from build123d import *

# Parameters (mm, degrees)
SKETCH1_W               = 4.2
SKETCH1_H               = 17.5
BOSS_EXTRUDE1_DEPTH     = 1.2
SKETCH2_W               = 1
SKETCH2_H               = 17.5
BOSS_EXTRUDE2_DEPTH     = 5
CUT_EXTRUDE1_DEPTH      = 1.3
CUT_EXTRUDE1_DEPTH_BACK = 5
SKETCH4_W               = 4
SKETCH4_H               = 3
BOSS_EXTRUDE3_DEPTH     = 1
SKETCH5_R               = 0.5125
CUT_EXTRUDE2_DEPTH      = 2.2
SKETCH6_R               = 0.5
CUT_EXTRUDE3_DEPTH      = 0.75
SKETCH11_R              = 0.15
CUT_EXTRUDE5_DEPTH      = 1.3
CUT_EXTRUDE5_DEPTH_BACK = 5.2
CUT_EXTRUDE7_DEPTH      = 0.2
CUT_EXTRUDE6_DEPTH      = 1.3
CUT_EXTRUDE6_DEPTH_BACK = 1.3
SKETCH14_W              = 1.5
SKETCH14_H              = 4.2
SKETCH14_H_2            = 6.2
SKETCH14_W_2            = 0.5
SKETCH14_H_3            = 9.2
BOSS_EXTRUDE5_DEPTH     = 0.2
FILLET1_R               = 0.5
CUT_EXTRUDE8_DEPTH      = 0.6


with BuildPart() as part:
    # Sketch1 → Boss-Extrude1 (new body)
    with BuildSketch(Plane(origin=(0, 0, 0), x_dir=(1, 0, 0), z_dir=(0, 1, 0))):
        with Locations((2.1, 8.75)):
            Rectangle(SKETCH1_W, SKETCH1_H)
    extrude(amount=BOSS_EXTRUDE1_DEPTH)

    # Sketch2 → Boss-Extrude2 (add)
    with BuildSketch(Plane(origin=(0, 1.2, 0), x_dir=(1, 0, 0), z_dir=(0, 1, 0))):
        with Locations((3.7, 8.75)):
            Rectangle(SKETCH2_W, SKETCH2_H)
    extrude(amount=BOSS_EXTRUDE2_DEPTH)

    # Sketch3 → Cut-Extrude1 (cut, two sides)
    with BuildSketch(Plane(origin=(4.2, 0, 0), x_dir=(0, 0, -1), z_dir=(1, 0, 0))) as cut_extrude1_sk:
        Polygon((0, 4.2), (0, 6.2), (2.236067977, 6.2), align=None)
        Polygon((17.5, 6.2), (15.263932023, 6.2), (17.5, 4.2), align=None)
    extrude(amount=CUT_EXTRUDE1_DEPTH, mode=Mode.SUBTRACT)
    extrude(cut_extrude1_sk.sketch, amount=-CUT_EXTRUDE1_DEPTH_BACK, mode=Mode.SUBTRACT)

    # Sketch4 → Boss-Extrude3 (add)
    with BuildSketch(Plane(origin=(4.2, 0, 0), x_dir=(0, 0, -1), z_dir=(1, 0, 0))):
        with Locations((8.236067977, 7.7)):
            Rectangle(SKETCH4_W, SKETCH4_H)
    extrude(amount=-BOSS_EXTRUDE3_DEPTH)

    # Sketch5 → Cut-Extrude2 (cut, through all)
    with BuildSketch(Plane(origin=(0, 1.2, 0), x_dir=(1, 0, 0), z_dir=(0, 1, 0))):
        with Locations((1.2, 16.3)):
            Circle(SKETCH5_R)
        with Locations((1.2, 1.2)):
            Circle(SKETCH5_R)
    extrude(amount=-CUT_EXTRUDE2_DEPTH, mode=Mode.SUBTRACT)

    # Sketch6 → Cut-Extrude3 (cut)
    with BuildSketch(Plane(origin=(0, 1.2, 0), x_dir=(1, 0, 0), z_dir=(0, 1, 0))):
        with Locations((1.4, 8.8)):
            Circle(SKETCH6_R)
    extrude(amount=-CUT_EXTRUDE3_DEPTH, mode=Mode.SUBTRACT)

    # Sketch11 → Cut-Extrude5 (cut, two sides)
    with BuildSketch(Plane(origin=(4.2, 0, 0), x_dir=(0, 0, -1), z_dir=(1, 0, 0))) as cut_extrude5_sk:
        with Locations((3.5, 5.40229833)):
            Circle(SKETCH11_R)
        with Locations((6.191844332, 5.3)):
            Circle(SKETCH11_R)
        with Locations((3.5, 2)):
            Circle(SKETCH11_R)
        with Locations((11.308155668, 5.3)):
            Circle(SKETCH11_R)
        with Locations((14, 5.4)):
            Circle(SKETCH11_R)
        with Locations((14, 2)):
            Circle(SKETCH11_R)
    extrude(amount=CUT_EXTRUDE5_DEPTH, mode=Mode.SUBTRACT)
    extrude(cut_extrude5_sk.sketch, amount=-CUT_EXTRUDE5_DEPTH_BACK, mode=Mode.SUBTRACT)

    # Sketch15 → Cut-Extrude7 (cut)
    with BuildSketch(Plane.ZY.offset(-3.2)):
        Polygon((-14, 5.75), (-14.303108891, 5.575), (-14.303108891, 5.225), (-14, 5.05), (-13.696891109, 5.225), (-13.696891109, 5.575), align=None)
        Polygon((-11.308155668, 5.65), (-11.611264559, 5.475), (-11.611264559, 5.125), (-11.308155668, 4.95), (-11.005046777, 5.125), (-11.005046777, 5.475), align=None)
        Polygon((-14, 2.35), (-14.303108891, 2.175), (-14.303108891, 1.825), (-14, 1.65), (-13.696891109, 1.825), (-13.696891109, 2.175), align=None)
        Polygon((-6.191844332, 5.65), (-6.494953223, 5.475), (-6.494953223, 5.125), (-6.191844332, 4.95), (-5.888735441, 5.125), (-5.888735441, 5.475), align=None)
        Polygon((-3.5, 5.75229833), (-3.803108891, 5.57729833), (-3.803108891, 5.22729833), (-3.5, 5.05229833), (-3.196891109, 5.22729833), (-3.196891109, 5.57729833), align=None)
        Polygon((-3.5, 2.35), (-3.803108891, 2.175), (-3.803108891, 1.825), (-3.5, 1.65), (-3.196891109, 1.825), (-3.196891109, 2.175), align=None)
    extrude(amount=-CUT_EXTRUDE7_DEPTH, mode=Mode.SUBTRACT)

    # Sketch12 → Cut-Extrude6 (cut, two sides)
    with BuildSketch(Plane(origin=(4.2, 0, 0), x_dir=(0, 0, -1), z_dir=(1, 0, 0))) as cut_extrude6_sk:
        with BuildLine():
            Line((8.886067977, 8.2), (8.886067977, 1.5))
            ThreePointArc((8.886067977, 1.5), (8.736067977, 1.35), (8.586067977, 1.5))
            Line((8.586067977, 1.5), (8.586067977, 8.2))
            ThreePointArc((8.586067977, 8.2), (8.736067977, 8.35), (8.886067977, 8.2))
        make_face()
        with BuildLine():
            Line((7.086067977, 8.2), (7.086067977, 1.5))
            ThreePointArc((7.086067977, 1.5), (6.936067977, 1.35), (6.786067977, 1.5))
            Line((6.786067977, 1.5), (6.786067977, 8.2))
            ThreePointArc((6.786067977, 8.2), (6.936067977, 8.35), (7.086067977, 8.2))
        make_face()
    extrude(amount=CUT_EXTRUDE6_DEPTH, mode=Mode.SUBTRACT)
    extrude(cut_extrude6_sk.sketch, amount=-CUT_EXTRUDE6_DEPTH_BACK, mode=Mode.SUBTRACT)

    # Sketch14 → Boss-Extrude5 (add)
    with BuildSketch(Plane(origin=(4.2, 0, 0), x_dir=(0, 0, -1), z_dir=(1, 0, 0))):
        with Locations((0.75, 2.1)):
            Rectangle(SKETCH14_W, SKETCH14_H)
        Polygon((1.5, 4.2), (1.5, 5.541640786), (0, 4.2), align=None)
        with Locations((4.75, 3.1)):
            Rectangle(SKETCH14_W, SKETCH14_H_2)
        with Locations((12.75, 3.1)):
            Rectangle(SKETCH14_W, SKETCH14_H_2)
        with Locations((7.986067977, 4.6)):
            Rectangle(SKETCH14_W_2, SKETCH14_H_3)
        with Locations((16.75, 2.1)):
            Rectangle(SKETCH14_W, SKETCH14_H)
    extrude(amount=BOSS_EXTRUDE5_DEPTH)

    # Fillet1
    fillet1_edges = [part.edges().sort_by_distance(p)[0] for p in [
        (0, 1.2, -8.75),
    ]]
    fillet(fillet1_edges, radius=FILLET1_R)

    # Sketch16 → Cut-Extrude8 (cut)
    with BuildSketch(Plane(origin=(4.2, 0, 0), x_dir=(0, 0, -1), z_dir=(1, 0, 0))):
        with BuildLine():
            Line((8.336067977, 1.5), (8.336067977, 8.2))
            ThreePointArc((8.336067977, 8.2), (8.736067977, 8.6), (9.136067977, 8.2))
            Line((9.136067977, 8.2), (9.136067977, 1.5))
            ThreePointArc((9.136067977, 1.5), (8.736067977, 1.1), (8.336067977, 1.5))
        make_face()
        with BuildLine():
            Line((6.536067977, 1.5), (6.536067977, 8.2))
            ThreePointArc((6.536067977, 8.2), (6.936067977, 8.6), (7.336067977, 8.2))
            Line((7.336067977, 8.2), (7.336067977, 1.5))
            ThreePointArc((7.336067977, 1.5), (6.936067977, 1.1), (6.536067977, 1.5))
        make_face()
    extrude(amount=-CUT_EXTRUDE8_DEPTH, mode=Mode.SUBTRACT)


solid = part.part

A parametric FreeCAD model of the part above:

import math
import FreeCAD as App
import Part
import Sketcher

V = App.Vector
Q = App.Units.Quantity


def edges_at(feature, points):
    """Names of the edges that pass closest to the given points."""
    edges = feature.Shape.Edges
    near = lambda p: min(range(len(edges)), key=lambda i: edges[i].distToShape(Part.Vertex(*p))[0])
    return sorted({f"Edge{near(p) + 1}" for p in points})

doc = App.newDocument("Part")
body = doc.addObject("PartDesign::Body", "Body")

sketch1 = body.newObject("Sketcher::SketchObject", "Sketch")
sketch1.AttachmentSupport = (doc.getObject("XZ_Plane"), [""])
sketch1.MapMode = "FlatFace"
sketch1.addGeometry([
    Part.LineSegment(V(0, -17.5, 0), V(0, 0, 0)),
    Part.LineSegment(V(0, 0, 0), V(4.2, 0, 0)),
    Part.LineSegment(V(4.2, 0, 0), V(4.2, -17.5, 0)),
    Part.LineSegment(V(4.2, -17.5, 0), V(0, -17.5, 0)),
], False)
sketch1.addConstraint([
    Sketcher.Constraint("Coincident", 0, 2, 1, 1),
    Sketcher.Constraint("Coincident", 1, 2, 2, 1),
    Sketcher.Constraint("Coincident", 2, 2, 3, 1),
    Sketcher.Constraint("Coincident", 3, 2, 0, 1),
    Sketcher.Constraint("Vertical", 0),
    Sketcher.Constraint("Horizontal", 1),
    Sketcher.Constraint("Vertical", 2),
    Sketcher.Constraint("Horizontal", 3),
    Sketcher.Constraint("Coincident", 0, 2, -1, 1),
    Sketcher.Constraint("DistanceX", 1, 1, 1, 2, Q("4.2 mm")),
    Sketcher.Constraint("DistanceY", 0, 1, 0, 2, Q("17.5 mm")),
])
pad1 = body.newObject("PartDesign::Pad", "Pad")
pad1.Profile = sketch1
pad1.Length = 1.2
pad1.Reversed = True

sketch2 = body.newObject("Sketcher::SketchObject", "Sketch001")
sketch2.AttachmentSupport = (doc.getObject("XZ_Plane"), [""])
sketch2.MapMode = "FlatFace"
sketch2.AttachmentOffset = App.Placement(V(0, 0, -1.2), App.Rotation())
sketch2.addGeometry([
    Part.LineSegment(V(3.2, -17.5, 0), V(3.2, 0, 0)),
    Part.LineSegment(V(3.2, 0, 0), V(4.2, 0, 0)),
    Part.LineSegment(V(4.2, 0, 0), V(4.2, -17.5, 0)),
    Part.LineSegment(V(4.2, -17.5, 0), V(3.2, -17.5, 0)),
], False)
sketch2.addConstraint([
    Sketcher.Constraint("Coincident", 0, 2, 1, 1),
    Sketcher.Constraint("Coincident", 1, 2, 2, 1),
    Sketcher.Constraint("Coincident", 2, 2, 3, 1),
    Sketcher.Constraint("Coincident", 3, 2, 0, 1),
    Sketcher.Constraint("Vertical", 0),
    Sketcher.Constraint("Horizontal", 1),
    Sketcher.Constraint("Vertical", 2),
    Sketcher.Constraint("Horizontal", 3),
    Sketcher.Constraint("PointOnObject", 0, 2, -1),
    Sketcher.Constraint("DistanceX", 1, 1, 1, 2, Q("1 mm")),
    Sketcher.Constraint("DistanceY", 0, 1, 0, 2, Q("17.5 mm")),
    Sketcher.Constraint("DistanceX", -1, 1, 0, 2, Q("3.2 mm")),
])
pad2 = body.newObject("PartDesign::Pad", "Pad001")
pad2.Profile = sketch2
pad2.Length = 5
pad2.Reversed = True

sketch3 = body.newObject("Sketcher::SketchObject", "Sketch002")
sketch3.AttachmentSupport = (doc.getObject("YZ_Plane"), [""])
sketch3.MapMode = "FlatFace"
sketch3.AttachmentOffset = App.Placement(V(0, 0, 4.2), App.Rotation())
sketch3.addGeometry([
    Part.LineSegment(V(6.2, 0, 0), V(4.2, 0, 0)),
    Part.LineSegment(V(4.2, 0, 0), V(6.2, -2.236068, 0)),
    Part.LineSegment(V(6.2, -2.236068, 0), V(6.2, 0, 0)),
    Part.LineSegment(V(6.2, -17.5, 0), V(6.2, -15.263932, 0)),
    Part.LineSegment(V(6.2, -15.263932, 0), V(4.2, -17.5, 0)),
    Part.LineSegment(V(4.2, -17.5, 0), V(6.2, -17.5, 0)),
], False)
sketch3.addConstraint([
    Sketcher.Constraint("Coincident", 0, 2, 1, 1),
    Sketcher.Constraint("Coincident", 1, 2, 2, 1),
    Sketcher.Constraint("Coincident", 2, 2, 0, 1),
    Sketcher.Constraint("Coincident", 3, 2, 4, 1),
    Sketcher.Constraint("Coincident", 4, 2, 5, 1),
    Sketcher.Constraint("Coincident", 5, 2, 3, 1),
    Sketcher.Constraint("Horizontal", 0),
    Sketcher.Constraint("Vertical", 2),
    Sketcher.Constraint("Vertical", 3),
    Sketcher.Constraint("Horizontal", 5),
    Sketcher.Constraint("PointOnObject", 0, 2, -1),
    Sketcher.Constraint("Vertical", 2, 2, 3, 2),
    Sketcher.Constraint("Vertical", 0, 2, 4, 2),
    Sketcher.Constraint("Equal", 2, 3),
    Sketcher.Constraint("DistanceX", 0, 2, 0, 1, Q("2 mm")),
    Sketcher.Constraint("Distance", 1, Q("3 mm")),
    Sketcher.Constraint("DistanceX", -1, 1, 0, 2, Q("4.2 mm")),
    Sketcher.Constraint("DistanceY", 4, 2, -1, 1, Q("17.5 mm")),
])
pocket1 = body.newObject("PartDesign::Pocket", "Pocket")
pocket1.Profile = sketch3
pocket1.Type = "ThroughAll"
pocket1.Midplane = True

sketch4 = body.newObject("Sketcher::SketchObject", "Sketch003")
sketch4.AttachmentSupport = (doc.getObject("YZ_Plane"), [""])
sketch4.MapMode = "FlatFace"
sketch4.AttachmentOffset = App.Placement(V(0, 0, 4.2), App.Rotation())
sketch4.addGeometry([
    Part.LineSegment(V(9.2, -6.236068, 0), V(6.2, -6.236068, 0)),
    Part.LineSegment(V(6.2, -6.236068, 0), V(6.2, -10.236068, 0)),
    Part.LineSegment(V(6.2, -10.236068, 0), V(9.2, -10.236068, 0)),
    Part.LineSegment(V(9.2, -10.236068, 0), V(9.2, -6.236068, 0)),
], False)
sketch4.addConstraint([
    Sketcher.Constraint("Coincident", 0, 2, 1, 1),
    Sketcher.Constraint("Coincident", 1, 2, 2, 1),
    Sketcher.Constraint("Coincident", 2, 2, 3, 1),
    Sketcher.Constraint("Coincident", 3, 2, 0, 1),
    Sketcher.Constraint("Horizontal", 0),
    Sketcher.Constraint("Vertical", 1),
    Sketcher.Constraint("Horizontal", 2),
    Sketcher.Constraint("Vertical", 3),
    Sketcher.Constraint("DistanceX", 0, 2, 0, 1, Q("3 mm")),
    Sketcher.Constraint("DistanceY", 1, 2, 1, 1, Q("4 mm")),
    Sketcher.Constraint("DistanceX", -1, 1, 0, 2, Q("6.2 mm")),
    Sketcher.Constraint("DistanceY", 0, 2, -1, 1, Q("6.236068 mm")),
])
pad3 = body.newObject("PartDesign::Pad", "Pad002")
pad3.Profile = sketch4
pad3.Length = 1
pad3.Reversed = True

sketch5 = body.newObject("Sketcher::SketchObject", "Sketch004")
sketch5.AttachmentSupport = (doc.getObject("XZ_Plane"), [""])
sketch5.MapMode = "FlatFace"
sketch5.AttachmentOffset = App.Placement(V(0, 0, -1.2), App.Rotation())
sketch5.addGeometry([
    Part.Circle(V(1.2, -16.3, 0), V(0, 0, 1), 0.5125),
    Part.Circle(V(1.2, -1.2, 0), V(0, 0, 1), 0.5125),
], False)
sketch5.addConstraint([
    Sketcher.Constraint("Equal", 0, 1),
    Sketcher.Constraint("Vertical", 0, 3, 1, 3),
    Sketcher.Constraint("Diameter", 0, Q("1.025 mm")),
    Sketcher.Constraint("DistanceX", -1, 1, 0, 3, Q("1.2 mm")),
    Sketcher.Constraint("DistanceY", 0, 3, -1, 1, Q("16.3 mm")),
    Sketcher.Constraint("DistanceY", 1, 3, -1, 1, Q("1.2 mm")),
])
pocket2 = body.newObject("PartDesign::Pocket", "Pocket001")
pocket2.Profile = sketch5
pocket2.Type = "ThroughAll"
pocket2.Reversed = True

sketch6 = body.newObject("Sketcher::SketchObject", "Sketch005")
sketch6.AttachmentSupport = (doc.getObject("XZ_Plane"), [""])
sketch6.MapMode = "FlatFace"
sketch6.AttachmentOffset = App.Placement(V(0, 0, -1.2), App.Rotation())
sketch6.addGeometry(Part.Circle(V(1.4, -8.8, 0), V(0, 0, 1), 0.5), False)
sketch6.addConstraint([
    Sketcher.Constraint("Diameter", 0, Q("1 mm")),
    Sketcher.Constraint("DistanceX", -1, 1, 0, 3, Q("1.4 mm")),
    Sketcher.Constraint("DistanceY", 0, 3, -1, 1, Q("8.8 mm")),
])
pocket3 = body.newObject("PartDesign::Pocket", "Pocket002")
pocket3.Profile = sketch6
pocket3.Length = 0.75
pocket3.Reversed = True

sketch7 = body.newObject("Sketcher::SketchObject", "Sketch006")
sketch7.AttachmentSupport = (doc.getObject("YZ_Plane"), [""])
sketch7.MapMode = "FlatFace"
sketch7.AttachmentOffset = App.Placement(V(0, 0, 4.2), App.Rotation())
sketch7.addGeometry([
    Part.Circle(V(5.402298, -3.5, 0), V(0, 0, 1), 0.15),
    Part.Circle(V(5.3, -6.191844, 0), V(0, 0, 1), 0.15),
    Part.Circle(V(2, -3.5, 0), V(0, 0, 1), 0.15),
    Part.Circle(V(5.3, -11.308156, 0), V(0, 0, 1), 0.15),
    Part.Circle(V(5.4, -14, 0), V(0, 0, 1), 0.15),
    Part.Circle(V(2, -14, 0), V(0, 0, 1), 0.15),
], False)
sketch7.addConstraint([
    Sketcher.Constraint("Equal", 0, 1),
    Sketcher.Constraint("Equal", 1, 2),
    Sketcher.Constraint("Equal", 2, 3),
    Sketcher.Constraint("Equal", 3, 4),
    Sketcher.Constraint("Equal", 4, 5),
    Sketcher.Constraint("Horizontal", 0, 3, 2, 3),
    Sketcher.Constraint("Horizontal", 4, 3, 5, 3),
    Sketcher.Constraint("Vertical", 1, 3, 3, 3),
    Sketcher.Constraint("Vertical", 2, 3, 5, 3),
    Sketcher.Constraint("Diameter", 0, Q("0.3 mm")),
    Sketcher.Constraint("DistanceX", -1, 1, 2, 3, Q("2 mm")),
    Sketcher.Constraint("DistanceY", 4, 3, -1, 1, Q("14 mm")),
    Sketcher.Constraint("DistanceY", 0, 3, -1, 1, Q("3.5 mm")),
    Sketcher.Constraint("DistanceX", -1, 1, 1, 3, Q("5.3 mm")),
    Sketcher.Constraint("DistanceX", -1, 1, 4, 3, Q("5.4 mm")),
    Sketcher.Constraint("DistanceX", -1, 1, 0, 3, Q("5.402298 mm")),
    Sketcher.Constraint("DistanceY", 3, 3, 1, 3, Q("5.116311 mm")),
    Sketcher.Constraint("DistanceY", 1, 3, -1, 1, Q("6.191844 mm")),
])
pocket4 = body.newObject("PartDesign::Pocket", "Pocket003")
pocket4.Profile = sketch7
pocket4.Type = "ThroughAll"
pocket4.Midplane = True

sketch8 = body.newObject("Sketcher::SketchObject", "Sketch007")
sketch8.AttachmentSupport = (doc.getObject("YZ_Plane"), [""])
sketch8.MapMode = "FlatFace"
sketch8.AttachmentOffset = App.Placement(V(0, 0, 3.2), App.Rotation())
sketch8.addGeometry([
    Part.LineSegment(V(5.75, -14, 0), V(5.575, -14.303109, 0)),
    Part.LineSegment(V(5.575, -14.303109, 0), V(5.225, -14.303109, 0)),
    Part.LineSegment(V(5.225, -14.303109, 0), V(5.05, -14, 0)),
    Part.LineSegment(V(5.05, -14, 0), V(5.225, -13.696891, 0)),
    Part.LineSegment(V(5.225, -13.696891, 0), V(5.575, -13.696891, 0)),
    Part.LineSegment(V(5.575, -13.696891, 0), V(5.75, -14, 0)),
    Part.LineSegment(V(5.65, -11.308156, 0), V(5.475, -11.611265, 0)),
    Part.LineSegment(V(5.475, -11.611265, 0), V(5.125, -11.611265, 0)),
    Part.LineSegment(V(5.125, -11.611265, 0), V(4.95, -11.308156, 0)),
    Part.LineSegment(V(4.95, -11.308156, 0), V(5.125, -11.005047, 0)),
    Part.LineSegment(V(5.125, -11.005047, 0), V(5.475, -11.005047, 0)),
    Part.LineSegment(V(5.475, -11.005047, 0), V(5.65, -11.308156, 0)),
    Part.LineSegment(V(2.35, -14, 0), V(2.175, -14.303109, 0)),
    Part.LineSegment(V(2.175, -14.303109, 0), V(1.825, -14.303109, 0)),
    Part.LineSegment(V(1.825, -14.303109, 0), V(1.65, -14, 0)),
    Part.LineSegment(V(1.65, -14, 0), V(1.825, -13.696891, 0)),
    Part.LineSegment(V(1.825, -13.696891, 0), V(2.175, -13.696891, 0)),
    Part.LineSegment(V(2.175, -13.696891, 0), V(2.35, -14, 0)),
    Part.LineSegment(V(5.65, -6.191844, 0), V(5.475, -6.494953, 0)),
    Part.LineSegment(V(5.475, -6.494953, 0), V(5.125, -6.494953, 0)),
    Part.LineSegment(V(5.125, -6.494953, 0), V(4.95, -6.191844, 0)),
    Part.LineSegment(V(4.95, -6.191844, 0), V(5.125, -5.888735, 0)),
    Part.LineSegment(V(5.125, -5.888735, 0), V(5.475, -5.888735, 0)),
    Part.LineSegment(V(5.475, -5.888735, 0), V(5.65, -6.191844, 0)),
    Part.LineSegment(V(5.752298, -3.5, 0), V(5.577298, -3.803109, 0)),
    Part.LineSegment(V(5.577298, -3.803109, 0), V(5.227298, -3.803109, 0)),
    Part.LineSegment(V(5.227298, -3.803109, 0), V(5.052298, -3.5, 0)),
    Part.LineSegment(V(5.052298, -3.5, 0), V(5.227298, -3.196891, 0)),
    Part.LineSegment(V(5.227298, -3.196891, 0), V(5.577298, -3.196891, 0)),
    Part.LineSegment(V(5.577298, -3.196891, 0), V(5.752298, -3.5, 0)),
    Part.LineSegment(V(2.35, -3.5, 0), V(2.175, -3.803109, 0)),
    Part.LineSegment(V(2.175, -3.803109, 0), V(1.825, -3.803109, 0)),
    Part.LineSegment(V(1.825, -3.803109, 0), V(1.65, -3.5, 0)),
    Part.LineSegment(V(1.65, -3.5, 0), V(1.825, -3.196891, 0)),
    Part.LineSegment(V(1.825, -3.196891, 0), V(2.175, -3.196891, 0)),
    Part.LineSegment(V(2.175, -3.196891, 0), V(2.35, -3.5, 0)),
], False)
sketch8.addConstraint([
    Sketcher.Constraint("Coincident", 0, 2, 1, 1),
    Sketcher.Constraint("Coincident", 1, 2, 2, 1),
    Sketcher.Constraint("Coincident", 2, 2, 3, 1),
    Sketcher.Constraint("Coincident", 3, 2, 4, 1),
    Sketcher.Constraint("Coincident", 4, 2, 5, 1),
    Sketcher.Constraint("Coincident", 5, 2, 0, 1),
    Sketcher.Constraint("Coincident", 6, 2, 7, 1),
    Sketcher.Constraint("Coincident", 7, 2, 8, 1),
    Sketcher.Constraint("Coincident", 8, 2, 9, 1),
    Sketcher.Constraint("Coincident", 9, 2, 10, 1),
    Sketcher.Constraint("Coincident", 10, 2, 11, 1),
    Sketcher.Constraint("Coincident", 11, 2, 6, 1),
    Sketcher.Constraint("Coincident", 12, 2, 13, 1),
    Sketcher.Constraint("Coincident", 13, 2, 14, 1),
    Sketcher.Constraint("Coincident", 14, 2, 15, 1),
    Sketcher.Constraint("Coincident", 15, 2, 16, 1),
    Sketcher.Constraint("Coincident", 16, 2, 17, 1),
    Sketcher.Constraint("Coincident", 17, 2, 12, 1),
    Sketcher.Constraint("Coincident", 18, 2, 19, 1),
    Sketcher.Constraint("Coincident", 19, 2, 20, 1),
    Sketcher.Constraint("Coincident", 20, 2, 21, 1),
    Sketcher.Constraint("Coincident", 21, 2, 22, 1),
    Sketcher.Constraint("Coincident", 22, 2, 23, 1),
    Sketcher.Constraint("Coincident", 23, 2, 18, 1),
    Sketcher.Constraint("Coincident", 24, 2, 25, 1),
    Sketcher.Constraint("Coincident", 25, 2, 26, 1),
    Sketcher.Constraint("Coincident", 26, 2, 27, 1),
    Sketcher.Constraint("Coincident", 27, 2, 28, 1),
    Sketcher.Constraint("Coincident", 28, 2, 29, 1),
    Sketcher.Constraint("Coincident", 29, 2, 24, 1),
    Sketcher.Constraint("Coincident", 30, 2, 31, 1),
    Sketcher.Constraint("Coincident", 31, 2, 32, 1),
    Sketcher.Constraint("Coincident", 32, 2, 33, 1),
    Sketcher.Constraint("Coincident", 33, 2, 34, 1),
    Sketcher.Constraint("Coincident", 34, 2, 35, 1),
    Sketcher.Constraint("Coincident", 35, 2, 30, 1),
    Sketcher.Constraint("Horizontal", 1),
    Sketcher.Constraint("Horizontal", 4),
    Sketcher.Constraint("Horizontal", 7),
    Sketcher.Constraint("Horizontal", 10),
    Sketcher.Constraint("Horizontal", 13),
    Sketcher.Constraint("Horizontal", 16),
    Sketcher.Constraint("Horizontal", 19),
    Sketcher.Constraint("Horizontal", 22),
    Sketcher.Constraint("Horizontal", 25),
    Sketcher.Constraint("Horizontal", 28),
    Sketcher.Constraint("Horizontal", 31),
    Sketcher.Constraint("Horizontal", 34),
    Sketcher.Constraint("Parallel", 0, 3),
    Sketcher.Constraint("Parallel", 2, 5),
    Sketcher.Constraint("Parallel", 3, 6),
    Sketcher.Constraint("Parallel", 5, 8),
    Sketcher.Constraint("Parallel", 6, 9),
    Sketcher.Constraint("Parallel", 8, 11),
    Sketcher.Constraint("Parallel", 9, 12),
    Sketcher.Constraint("Parallel", 11, 14),
    Sketcher.Constraint("Parallel", 12, 15),
    Sketcher.Constraint("Parallel", 14, 17),
    Sketcher.Constraint("Parallel", 15, 18),
    Sketcher.Constraint("Parallel", 17, 20),
    Sketcher.Constraint("Parallel", 18, 21),
    Sketcher.Constraint("Parallel", 20, 23),
    Sketcher.Constraint("Parallel", 21, 24),
    Sketcher.Constraint("Parallel", 23, 26),
    Sketcher.Constraint("Parallel", 24, 27),
    Sketcher.Constraint("Parallel", 26, 29),
    Sketcher.Constraint("Parallel", 27, 30),
    Sketcher.Constraint("Parallel", 29, 32),
    Sketcher.Constraint("Parallel", 30, 33),
    Sketcher.Constraint("Parallel", 32, 35),
    Sketcher.Constraint("Horizontal", 2, 2, 5, 2),
    Sketcher.Constraint("Horizontal", 8, 2, 11, 2),
    Sketcher.Constraint("Horizontal", 1, 2, 12, 2),
    Sketcher.Constraint("Horizontal", 5, 2, 14, 2),
    Sketcher.Constraint("Horizontal", 4, 2, 15, 2),
    Sketcher.Constraint("Horizontal", 14, 2, 17, 2),
    Sketcher.Constraint("Horizontal", 20, 2, 23, 2),
    Sketcher.Constraint("Horizontal", 26, 2, 29, 2),
    Sketcher.Constraint("Horizontal", 25, 2, 30, 2),
    Sketcher.Constraint("Horizontal", 29, 2, 32, 2),
    Sketcher.Constraint("Horizontal", 28, 2, 33, 2),
    Sketcher.Constraint("Horizontal", 32, 2, 35, 2),
    Sketcher.Constraint("Vertical", 1, 2, 3, 2),
    Sketcher.Constraint("Vertical", 0, 2, 4, 2),
    Sketcher.Constraint("Vertical", 7, 2, 9, 2),
    Sketcher.Constraint("Vertical", 10, 2, 18, 2),
    Sketcher.Constraint("Vertical", 9, 2, 19, 2),
    Sketcher.Constraint("Vertical", 8, 2, 20, 2),
    Sketcher.Constraint("Vertical", 19, 2, 21, 2),
    Sketcher.Constraint("Vertical", 25, 2, 27, 2),
    Sketcher.Constraint("Vertical", 16, 2, 30, 2),
    Sketcher.Constraint("Vertical", 15, 2, 31, 2),
    Sketcher.Constraint("Vertical", 14, 2, 32, 2),
    Sketcher.Constraint("Equal", 4, 7),
    Sketcher.Constraint("Equal", 10, 13),
    Sketcher.Constraint("Equal", 22, 25),
    Sketcher.Constraint("Equal", 5, 6),
    Sketcher.Constraint("Angle", 0, Q("-120 deg")),
    Sketcher.Constraint("DistanceY", 2, 2, -1, 1, Q("14 mm")),
    Sketcher.Constraint("DistanceX", 1, 2, 1, 1, Q("0.35 mm")),
    Sketcher.Constraint("DistanceY", 26, 2, -1, 1, Q("3.5 mm")),
    Sketcher.Constraint("DistanceX", 2, 2, 5, 2, Q("0.7 mm")),
    Sketcher.Constraint("DistanceX", 6, 2, 4, 2, Q("0.1 mm")),
    Sketcher.Constraint("DistanceX", 12, 2, 0, 2, Q("3.4 mm")),
    Sketcher.Constraint("DistanceX", -1, 1, 2, 2, Q("5.05 mm")),
    Sketcher.Constraint("DistanceX", -1, 1, 24, 2, Q("5.577298 mm")),
    Sketcher.Constraint("DistanceY", 6, 2, 18, 2, Q("5.116311 mm")),
    Sketcher.Constraint("DistanceY", 6, 2, -1, 1, Q("11.611265 mm")),
])
pocket5 = body.newObject("PartDesign::Pocket", "Pocket004")
pocket5.Profile = sketch8
pocket5.Length = 0.2
pocket5.Reversed = True

sketch9 = body.newObject("Sketcher::SketchObject", "Sketch008")
sketch9.AttachmentSupport = (doc.getObject("YZ_Plane"), [""])
sketch9.MapMode = "FlatFace"
sketch9.AttachmentOffset = App.Placement(V(0, 0, 4.2), App.Rotation())
sketch9.addGeometry([
    Part.LineSegment(V(1.5, -8.886068, 0), V(8.2, -8.886068, 0)),
    Part.ArcOfCircle(Part.Circle(V(8.2, -8.736068, 0), V(0, 0, 1), 0.15), math.radians(-90), math.radians(90)),
    Part.LineSegment(V(8.2, -8.586068, 0), V(1.5, -8.586068, 0)),
    Part.ArcOfCircle(Part.Circle(V(1.5, -8.736068, 0), V(0, 0, 1), 0.15), math.radians(90), math.radians(270)),
    Part.LineSegment(V(1.5, -7.086068, 0), V(8.2, -7.086068, 0)),
    Part.ArcOfCircle(Part.Circle(V(8.2, -6.936068, 0), V(0, 0, 1), 0.15), math.radians(-90), math.radians(90)),
    Part.LineSegment(V(8.2, -6.786068, 0), V(1.5, -6.786068, 0)),
    Part.ArcOfCircle(Part.Circle(V(1.5, -6.936068, 0), V(0, 0, 1), 0.15), math.radians(90), math.radians(270)),
], False)
sketch9.addConstraint([
    Sketcher.Constraint("Tangent", 0, 2, 1, 1),
    Sketcher.Constraint("Tangent", 1, 2, 2, 1),
    Sketcher.Constraint("Tangent", 2, 2, 3, 1),
    Sketcher.Constraint("Tangent", 3, 2, 0, 1),
    Sketcher.Constraint("Tangent", 4, 2, 5, 1),
    Sketcher.Constraint("Tangent", 5, 2, 6, 1),
    Sketcher.Constraint("Tangent", 6, 2, 7, 1),
    Sketcher.Constraint("Tangent", 7, 2, 4, 1),
    Sketcher.Constraint("Horizontal", 0),
    Sketcher.Constraint("Horizontal", 2),
    Sketcher.Constraint("Horizontal", 4),
    Sketcher.Constraint("Horizontal", 6),
    Sketcher.Constraint("Equal", 3, 5),
    Sketcher.Constraint("Vertical", 1, 3, 5, 3),
    Sketcher.Constraint("Vertical", 3, 3, 7, 3),
    Sketcher.Constraint("Radius", 1, Q("0.15 mm")),
    Sketcher.Constraint("DistanceX", 0, 1, 0, 2, Q("6.7 mm")),
    Sketcher.Constraint("DistanceX", -1, 1, 1, 3, Q("8.2 mm")),
    Sketcher.Constraint("DistanceY", 1, 3, 5, 3, Q("1.8 mm")),
    Sketcher.Constraint("DistanceY", 1, 3, -1, 1, Q("8.736068 mm")),
])
pocket6 = body.newObject("PartDesign::Pocket", "Pocket005")
pocket6.Profile = sketch9
pocket6.Type = "ThroughAll"
pocket6.Midplane = True

sketch10 = body.newObject("Sketcher::SketchObject", "Sketch009")
sketch10.AttachmentSupport = (doc.getObject("YZ_Plane"), [""])
sketch10.MapMode = "FlatFace"
sketch10.AttachmentOffset = App.Placement(V(0, 0, 4.2), App.Rotation())
sketch10.addGeometry([
    Part.LineSegment(V(4.2, 0, 0), V(0, 0, 0)),
    Part.LineSegment(V(0, 0, 0), V(0, -1.5, 0)),
    Part.LineSegment(V(0, -1.5, 0), V(5.541641, -1.5, 0)),
    Part.LineSegment(V(5.541641, -1.5, 0), V(4.2, 0, 0)),
    Part.LineSegment(V(6.2, -4, 0), V(0, -4, 0)),
    Part.LineSegment(V(0, -4, 0), V(0, -5.5, 0)),
    Part.LineSegment(V(0, -5.5, 0), V(6.2, -5.5, 0)),
    Part.LineSegment(V(6.2, -5.5, 0), V(6.2, -4, 0)),
    Part.LineSegment(V(6.2, -12, 0), V(0, -12, 0)),
    Part.LineSegment(V(0, -12, 0), V(0, -13.5, 0)),
    Part.LineSegment(V(0, -13.5, 0), V(6.2, -13.5, 0)),
    Part.LineSegment(V(6.2, -13.5, 0), V(6.2, -12, 0)),
    Part.LineSegment(V(9.2, -7.736068, 0), V(0, -7.736068, 0)),
    Part.LineSegment(V(0, -7.736068, 0), V(0, -8.236068, 0)),
    Part.LineSegment(V(0, -8.236068, 0), V(9.2, -8.236068, 0)),
    Part.LineSegment(V(9.2, -8.236068, 0), V(9.2, -7.736068, 0)),
    Part.LineSegment(V(4.2, -16, 0), V(0, -16, 0)),
    Part.LineSegment(V(0, -16, 0), V(0, -17.5, 0)),
    Part.LineSegment(V(0, -17.5, 0), V(4.2, -17.5, 0)),
    Part.LineSegment(V(4.2, -17.5, 0), V(4.2, -16, 0)),
], False)
sketch10.addConstraint([
    Sketcher.Constraint("Coincident", 0, 2, 1, 1),
    Sketcher.Constraint("Coincident", 1, 2, 2, 1),
    Sketcher.Constraint("Coincident", 2, 2, 3, 1),
    Sketcher.Constraint("Coincident", 3, 2, 0, 1),
    Sketcher.Constraint("Coincident", 4, 2, 5, 1),
    Sketcher.Constraint("Coincident", 5, 2, 6, 1),
    Sketcher.Constraint("Coincident", 6, 2, 7, 1),
    Sketcher.Constraint("Coincident", 7, 2, 4, 1),
    Sketcher.Constraint("Coincident", 8, 2, 9, 1),
    Sketcher.Constraint("Coincident", 9, 2, 10, 1),
    Sketcher.Constraint("Coincident", 10, 2, 11, 1),
    Sketcher.Constraint("Coincident", 11, 2, 8, 1),
    Sketcher.Constraint("Coincident", 12, 2, 13, 1),
    Sketcher.Constraint("Coincident", 13, 2, 14, 1),
    Sketcher.Constraint("Coincident", 14, 2, 15, 1),
    Sketcher.Constraint("Coincident", 15, 2, 12, 1),
    Sketcher.Constraint("Coincident", 16, 2, 17, 1),
    Sketcher.Constraint("Coincident", 17, 2, 18, 1),
    Sketcher.Constraint("Coincident", 18, 2, 19, 1),
    Sketcher.Constraint("Coincident", 19, 2, 16, 1),
    Sketcher.Constraint("Horizontal", 0),
    Sketcher.Constraint("Vertical", 1),
    Sketcher.Constraint("Horizontal", 2),
    Sketcher.Constraint("Horizontal", 4),
    Sketcher.Constraint("Vertical", 5),
    Sketcher.Constraint("Horizontal", 6),
    Sketcher.Constraint("Vertical", 7),
    Sketcher.Constraint("Horizontal", 8),
    Sketcher.Constraint("Vertical", 9),
    Sketcher.Constraint("Horizontal", 10),
    Sketcher.Constraint("Vertical", 11),
    Sketcher.Constraint("Horizontal", 12),
    Sketcher.Constraint("Vertical", 13),
    Sketcher.Constraint("Horizontal", 14),
    Sketcher.Constraint("Vertical", 15),
    Sketcher.Constraint("Horizontal", 16),
    Sketcher.Constraint("Vertical", 17),
    Sketcher.Constraint("Horizontal", 18),
    Sketcher.Constraint("Vertical", 19),
    Sketcher.Constraint("Coincident", 0, 2, -1, 1),
    Sketcher.Constraint("PointOnObject", 4, 2, -2),
    Sketcher.Constraint("PointOnObject", 8, 2, -2),
    Sketcher.Constraint("PointOnObject", 12, 2, -2),
    Sketcher.Constraint("PointOnObject", 16, 2, -2),
    Sketcher.Constraint("Vertical", 7, 2, 10, 2),
    Sketcher.Constraint("Vertical", 3, 2, 18, 2),
    Sketcher.Constraint("Equal", 1, 5),
    Sketcher.Constraint("Equal", 7, 9),
    Sketcher.Constraint("Equal", 11, 17),
    Sketcher.Constraint("DistanceX", 0, 2, 0, 1, Q("4.2 mm")),
    Sketcher.Constraint("DistanceX", 4, 2, 4, 1, Q("6.2 mm")),
    Sketcher.Constraint("DistanceX", 12, 2, 12, 1, Q("9.2 mm")),
    Sketcher.Constraint("DistanceY", 1, 2, 1, 1, Q("1.5 mm")),
    Sketcher.Constraint("DistanceY", 13, 2, 13, 1, Q("0.5 mm")),
    Sketcher.Constraint("DistanceY", 4, 2, -1, 1, Q("4 mm")),
    Sketcher.Constraint("DistanceY", 8, 2, -1, 1, Q("12 mm")),
    Sketcher.Constraint("DistanceY", 16, 2, -1, 1, Q("16 mm")),
    Sketcher.Constraint("DistanceX", 2, 1, 2, 2, Q("5.541641 mm")),
    Sketcher.Constraint("DistanceY", 12, 2, -1, 1, Q("7.736068 mm")),
])
pad4 = body.newObject("PartDesign::Pad", "Pad003")
pad4.Profile = sketch10
pad4.Length = 0.2
doc.recompute()

fillet = body.newObject("PartDesign::Fillet", "Fillet")
fillet.Base = (pad4, edges_at(pad4, [(0, 1.2, -8.75)]))
fillet.Radius = 0.5

sketch11 = body.newObject("Sketcher::SketchObject", "Sketch010")
sketch11.AttachmentSupport = (doc.getObject("YZ_Plane"), [""])
sketch11.MapMode = "FlatFace"
sketch11.AttachmentOffset = App.Placement(V(0, 0, 4.2), App.Rotation())
sketch11.addGeometry([
    Part.LineSegment(V(8.2, -8.336068, 0), V(1.5, -8.336068, 0)),
    Part.ArcOfCircle(Part.Circle(V(1.5, -8.736068, 0), V(0, 0, 1), 0.4), math.radians(90), math.radians(270)),
    Part.LineSegment(V(1.5, -9.136068, 0), V(8.2, -9.136068, 0)),
    Part.ArcOfCircle(Part.Circle(V(8.2, -8.736068, 0), V(0, 0, 1), 0.4), math.radians(-90), math.radians(90)),
    Part.LineSegment(V(8.2, -6.536068, 0), V(1.5, -6.536068, 0)),
    Part.ArcOfCircle(Part.Circle(V(1.5, -6.936068, 0), V(0, 0, 1), 0.4), math.radians(90), math.radians(270)),
    Part.LineSegment(V(1.5, -7.336068, 0), V(8.2, -7.336068, 0)),
    Part.ArcOfCircle(Part.Circle(V(8.2, -6.936068, 0), V(0, 0, 1), 0.4), math.radians(-90), math.radians(90)),
], False)
sketch11.addConstraint([
    Sketcher.Constraint("Tangent", 0, 2, 1, 1),
    Sketcher.Constraint("Tangent", 1, 2, 2, 1),
    Sketcher.Constraint("Tangent", 2, 2, 3, 1),
    Sketcher.Constraint("Tangent", 3, 2, 0, 1),
    Sketcher.Constraint("Tangent", 4, 2, 5, 1),
    Sketcher.Constraint("Tangent", 5, 2, 6, 1),
    Sketcher.Constraint("Tangent", 6, 2, 7, 1),
    Sketcher.Constraint("Tangent", 7, 2, 4, 1),
    Sketcher.Constraint("Horizontal", 0),
    Sketcher.Constraint("Horizontal", 2),
    Sketcher.Constraint("Horizontal", 4),
    Sketcher.Constraint("Horizontal", 6),
    Sketcher.Constraint("Equal", 3, 5),
    Sketcher.Constraint("Vertical", 1, 3, 5, 3),
    Sketcher.Constraint("Vertical", 3, 3, 7, 3),
    Sketcher.Constraint("Radius", 1, Q("0.4 mm")),
    Sketcher.Constraint("DistanceX", 0, 2, 0, 1, Q("6.7 mm")),
    Sketcher.Constraint("DistanceY", 0, 2, 5, 2, Q("1 mm")),
    Sketcher.Constraint("DistanceX", -1, 1, 1, 3, Q("1.5 mm")),
    Sketcher.Constraint("DistanceY", 1, 3, -1, 1, Q("8.736068 mm")),
])
pocket7 = body.newObject("PartDesign::Pocket", "Pocket006")
pocket7.Profile = sketch11
pocket7.Length = 0.6

doc.recompute()
